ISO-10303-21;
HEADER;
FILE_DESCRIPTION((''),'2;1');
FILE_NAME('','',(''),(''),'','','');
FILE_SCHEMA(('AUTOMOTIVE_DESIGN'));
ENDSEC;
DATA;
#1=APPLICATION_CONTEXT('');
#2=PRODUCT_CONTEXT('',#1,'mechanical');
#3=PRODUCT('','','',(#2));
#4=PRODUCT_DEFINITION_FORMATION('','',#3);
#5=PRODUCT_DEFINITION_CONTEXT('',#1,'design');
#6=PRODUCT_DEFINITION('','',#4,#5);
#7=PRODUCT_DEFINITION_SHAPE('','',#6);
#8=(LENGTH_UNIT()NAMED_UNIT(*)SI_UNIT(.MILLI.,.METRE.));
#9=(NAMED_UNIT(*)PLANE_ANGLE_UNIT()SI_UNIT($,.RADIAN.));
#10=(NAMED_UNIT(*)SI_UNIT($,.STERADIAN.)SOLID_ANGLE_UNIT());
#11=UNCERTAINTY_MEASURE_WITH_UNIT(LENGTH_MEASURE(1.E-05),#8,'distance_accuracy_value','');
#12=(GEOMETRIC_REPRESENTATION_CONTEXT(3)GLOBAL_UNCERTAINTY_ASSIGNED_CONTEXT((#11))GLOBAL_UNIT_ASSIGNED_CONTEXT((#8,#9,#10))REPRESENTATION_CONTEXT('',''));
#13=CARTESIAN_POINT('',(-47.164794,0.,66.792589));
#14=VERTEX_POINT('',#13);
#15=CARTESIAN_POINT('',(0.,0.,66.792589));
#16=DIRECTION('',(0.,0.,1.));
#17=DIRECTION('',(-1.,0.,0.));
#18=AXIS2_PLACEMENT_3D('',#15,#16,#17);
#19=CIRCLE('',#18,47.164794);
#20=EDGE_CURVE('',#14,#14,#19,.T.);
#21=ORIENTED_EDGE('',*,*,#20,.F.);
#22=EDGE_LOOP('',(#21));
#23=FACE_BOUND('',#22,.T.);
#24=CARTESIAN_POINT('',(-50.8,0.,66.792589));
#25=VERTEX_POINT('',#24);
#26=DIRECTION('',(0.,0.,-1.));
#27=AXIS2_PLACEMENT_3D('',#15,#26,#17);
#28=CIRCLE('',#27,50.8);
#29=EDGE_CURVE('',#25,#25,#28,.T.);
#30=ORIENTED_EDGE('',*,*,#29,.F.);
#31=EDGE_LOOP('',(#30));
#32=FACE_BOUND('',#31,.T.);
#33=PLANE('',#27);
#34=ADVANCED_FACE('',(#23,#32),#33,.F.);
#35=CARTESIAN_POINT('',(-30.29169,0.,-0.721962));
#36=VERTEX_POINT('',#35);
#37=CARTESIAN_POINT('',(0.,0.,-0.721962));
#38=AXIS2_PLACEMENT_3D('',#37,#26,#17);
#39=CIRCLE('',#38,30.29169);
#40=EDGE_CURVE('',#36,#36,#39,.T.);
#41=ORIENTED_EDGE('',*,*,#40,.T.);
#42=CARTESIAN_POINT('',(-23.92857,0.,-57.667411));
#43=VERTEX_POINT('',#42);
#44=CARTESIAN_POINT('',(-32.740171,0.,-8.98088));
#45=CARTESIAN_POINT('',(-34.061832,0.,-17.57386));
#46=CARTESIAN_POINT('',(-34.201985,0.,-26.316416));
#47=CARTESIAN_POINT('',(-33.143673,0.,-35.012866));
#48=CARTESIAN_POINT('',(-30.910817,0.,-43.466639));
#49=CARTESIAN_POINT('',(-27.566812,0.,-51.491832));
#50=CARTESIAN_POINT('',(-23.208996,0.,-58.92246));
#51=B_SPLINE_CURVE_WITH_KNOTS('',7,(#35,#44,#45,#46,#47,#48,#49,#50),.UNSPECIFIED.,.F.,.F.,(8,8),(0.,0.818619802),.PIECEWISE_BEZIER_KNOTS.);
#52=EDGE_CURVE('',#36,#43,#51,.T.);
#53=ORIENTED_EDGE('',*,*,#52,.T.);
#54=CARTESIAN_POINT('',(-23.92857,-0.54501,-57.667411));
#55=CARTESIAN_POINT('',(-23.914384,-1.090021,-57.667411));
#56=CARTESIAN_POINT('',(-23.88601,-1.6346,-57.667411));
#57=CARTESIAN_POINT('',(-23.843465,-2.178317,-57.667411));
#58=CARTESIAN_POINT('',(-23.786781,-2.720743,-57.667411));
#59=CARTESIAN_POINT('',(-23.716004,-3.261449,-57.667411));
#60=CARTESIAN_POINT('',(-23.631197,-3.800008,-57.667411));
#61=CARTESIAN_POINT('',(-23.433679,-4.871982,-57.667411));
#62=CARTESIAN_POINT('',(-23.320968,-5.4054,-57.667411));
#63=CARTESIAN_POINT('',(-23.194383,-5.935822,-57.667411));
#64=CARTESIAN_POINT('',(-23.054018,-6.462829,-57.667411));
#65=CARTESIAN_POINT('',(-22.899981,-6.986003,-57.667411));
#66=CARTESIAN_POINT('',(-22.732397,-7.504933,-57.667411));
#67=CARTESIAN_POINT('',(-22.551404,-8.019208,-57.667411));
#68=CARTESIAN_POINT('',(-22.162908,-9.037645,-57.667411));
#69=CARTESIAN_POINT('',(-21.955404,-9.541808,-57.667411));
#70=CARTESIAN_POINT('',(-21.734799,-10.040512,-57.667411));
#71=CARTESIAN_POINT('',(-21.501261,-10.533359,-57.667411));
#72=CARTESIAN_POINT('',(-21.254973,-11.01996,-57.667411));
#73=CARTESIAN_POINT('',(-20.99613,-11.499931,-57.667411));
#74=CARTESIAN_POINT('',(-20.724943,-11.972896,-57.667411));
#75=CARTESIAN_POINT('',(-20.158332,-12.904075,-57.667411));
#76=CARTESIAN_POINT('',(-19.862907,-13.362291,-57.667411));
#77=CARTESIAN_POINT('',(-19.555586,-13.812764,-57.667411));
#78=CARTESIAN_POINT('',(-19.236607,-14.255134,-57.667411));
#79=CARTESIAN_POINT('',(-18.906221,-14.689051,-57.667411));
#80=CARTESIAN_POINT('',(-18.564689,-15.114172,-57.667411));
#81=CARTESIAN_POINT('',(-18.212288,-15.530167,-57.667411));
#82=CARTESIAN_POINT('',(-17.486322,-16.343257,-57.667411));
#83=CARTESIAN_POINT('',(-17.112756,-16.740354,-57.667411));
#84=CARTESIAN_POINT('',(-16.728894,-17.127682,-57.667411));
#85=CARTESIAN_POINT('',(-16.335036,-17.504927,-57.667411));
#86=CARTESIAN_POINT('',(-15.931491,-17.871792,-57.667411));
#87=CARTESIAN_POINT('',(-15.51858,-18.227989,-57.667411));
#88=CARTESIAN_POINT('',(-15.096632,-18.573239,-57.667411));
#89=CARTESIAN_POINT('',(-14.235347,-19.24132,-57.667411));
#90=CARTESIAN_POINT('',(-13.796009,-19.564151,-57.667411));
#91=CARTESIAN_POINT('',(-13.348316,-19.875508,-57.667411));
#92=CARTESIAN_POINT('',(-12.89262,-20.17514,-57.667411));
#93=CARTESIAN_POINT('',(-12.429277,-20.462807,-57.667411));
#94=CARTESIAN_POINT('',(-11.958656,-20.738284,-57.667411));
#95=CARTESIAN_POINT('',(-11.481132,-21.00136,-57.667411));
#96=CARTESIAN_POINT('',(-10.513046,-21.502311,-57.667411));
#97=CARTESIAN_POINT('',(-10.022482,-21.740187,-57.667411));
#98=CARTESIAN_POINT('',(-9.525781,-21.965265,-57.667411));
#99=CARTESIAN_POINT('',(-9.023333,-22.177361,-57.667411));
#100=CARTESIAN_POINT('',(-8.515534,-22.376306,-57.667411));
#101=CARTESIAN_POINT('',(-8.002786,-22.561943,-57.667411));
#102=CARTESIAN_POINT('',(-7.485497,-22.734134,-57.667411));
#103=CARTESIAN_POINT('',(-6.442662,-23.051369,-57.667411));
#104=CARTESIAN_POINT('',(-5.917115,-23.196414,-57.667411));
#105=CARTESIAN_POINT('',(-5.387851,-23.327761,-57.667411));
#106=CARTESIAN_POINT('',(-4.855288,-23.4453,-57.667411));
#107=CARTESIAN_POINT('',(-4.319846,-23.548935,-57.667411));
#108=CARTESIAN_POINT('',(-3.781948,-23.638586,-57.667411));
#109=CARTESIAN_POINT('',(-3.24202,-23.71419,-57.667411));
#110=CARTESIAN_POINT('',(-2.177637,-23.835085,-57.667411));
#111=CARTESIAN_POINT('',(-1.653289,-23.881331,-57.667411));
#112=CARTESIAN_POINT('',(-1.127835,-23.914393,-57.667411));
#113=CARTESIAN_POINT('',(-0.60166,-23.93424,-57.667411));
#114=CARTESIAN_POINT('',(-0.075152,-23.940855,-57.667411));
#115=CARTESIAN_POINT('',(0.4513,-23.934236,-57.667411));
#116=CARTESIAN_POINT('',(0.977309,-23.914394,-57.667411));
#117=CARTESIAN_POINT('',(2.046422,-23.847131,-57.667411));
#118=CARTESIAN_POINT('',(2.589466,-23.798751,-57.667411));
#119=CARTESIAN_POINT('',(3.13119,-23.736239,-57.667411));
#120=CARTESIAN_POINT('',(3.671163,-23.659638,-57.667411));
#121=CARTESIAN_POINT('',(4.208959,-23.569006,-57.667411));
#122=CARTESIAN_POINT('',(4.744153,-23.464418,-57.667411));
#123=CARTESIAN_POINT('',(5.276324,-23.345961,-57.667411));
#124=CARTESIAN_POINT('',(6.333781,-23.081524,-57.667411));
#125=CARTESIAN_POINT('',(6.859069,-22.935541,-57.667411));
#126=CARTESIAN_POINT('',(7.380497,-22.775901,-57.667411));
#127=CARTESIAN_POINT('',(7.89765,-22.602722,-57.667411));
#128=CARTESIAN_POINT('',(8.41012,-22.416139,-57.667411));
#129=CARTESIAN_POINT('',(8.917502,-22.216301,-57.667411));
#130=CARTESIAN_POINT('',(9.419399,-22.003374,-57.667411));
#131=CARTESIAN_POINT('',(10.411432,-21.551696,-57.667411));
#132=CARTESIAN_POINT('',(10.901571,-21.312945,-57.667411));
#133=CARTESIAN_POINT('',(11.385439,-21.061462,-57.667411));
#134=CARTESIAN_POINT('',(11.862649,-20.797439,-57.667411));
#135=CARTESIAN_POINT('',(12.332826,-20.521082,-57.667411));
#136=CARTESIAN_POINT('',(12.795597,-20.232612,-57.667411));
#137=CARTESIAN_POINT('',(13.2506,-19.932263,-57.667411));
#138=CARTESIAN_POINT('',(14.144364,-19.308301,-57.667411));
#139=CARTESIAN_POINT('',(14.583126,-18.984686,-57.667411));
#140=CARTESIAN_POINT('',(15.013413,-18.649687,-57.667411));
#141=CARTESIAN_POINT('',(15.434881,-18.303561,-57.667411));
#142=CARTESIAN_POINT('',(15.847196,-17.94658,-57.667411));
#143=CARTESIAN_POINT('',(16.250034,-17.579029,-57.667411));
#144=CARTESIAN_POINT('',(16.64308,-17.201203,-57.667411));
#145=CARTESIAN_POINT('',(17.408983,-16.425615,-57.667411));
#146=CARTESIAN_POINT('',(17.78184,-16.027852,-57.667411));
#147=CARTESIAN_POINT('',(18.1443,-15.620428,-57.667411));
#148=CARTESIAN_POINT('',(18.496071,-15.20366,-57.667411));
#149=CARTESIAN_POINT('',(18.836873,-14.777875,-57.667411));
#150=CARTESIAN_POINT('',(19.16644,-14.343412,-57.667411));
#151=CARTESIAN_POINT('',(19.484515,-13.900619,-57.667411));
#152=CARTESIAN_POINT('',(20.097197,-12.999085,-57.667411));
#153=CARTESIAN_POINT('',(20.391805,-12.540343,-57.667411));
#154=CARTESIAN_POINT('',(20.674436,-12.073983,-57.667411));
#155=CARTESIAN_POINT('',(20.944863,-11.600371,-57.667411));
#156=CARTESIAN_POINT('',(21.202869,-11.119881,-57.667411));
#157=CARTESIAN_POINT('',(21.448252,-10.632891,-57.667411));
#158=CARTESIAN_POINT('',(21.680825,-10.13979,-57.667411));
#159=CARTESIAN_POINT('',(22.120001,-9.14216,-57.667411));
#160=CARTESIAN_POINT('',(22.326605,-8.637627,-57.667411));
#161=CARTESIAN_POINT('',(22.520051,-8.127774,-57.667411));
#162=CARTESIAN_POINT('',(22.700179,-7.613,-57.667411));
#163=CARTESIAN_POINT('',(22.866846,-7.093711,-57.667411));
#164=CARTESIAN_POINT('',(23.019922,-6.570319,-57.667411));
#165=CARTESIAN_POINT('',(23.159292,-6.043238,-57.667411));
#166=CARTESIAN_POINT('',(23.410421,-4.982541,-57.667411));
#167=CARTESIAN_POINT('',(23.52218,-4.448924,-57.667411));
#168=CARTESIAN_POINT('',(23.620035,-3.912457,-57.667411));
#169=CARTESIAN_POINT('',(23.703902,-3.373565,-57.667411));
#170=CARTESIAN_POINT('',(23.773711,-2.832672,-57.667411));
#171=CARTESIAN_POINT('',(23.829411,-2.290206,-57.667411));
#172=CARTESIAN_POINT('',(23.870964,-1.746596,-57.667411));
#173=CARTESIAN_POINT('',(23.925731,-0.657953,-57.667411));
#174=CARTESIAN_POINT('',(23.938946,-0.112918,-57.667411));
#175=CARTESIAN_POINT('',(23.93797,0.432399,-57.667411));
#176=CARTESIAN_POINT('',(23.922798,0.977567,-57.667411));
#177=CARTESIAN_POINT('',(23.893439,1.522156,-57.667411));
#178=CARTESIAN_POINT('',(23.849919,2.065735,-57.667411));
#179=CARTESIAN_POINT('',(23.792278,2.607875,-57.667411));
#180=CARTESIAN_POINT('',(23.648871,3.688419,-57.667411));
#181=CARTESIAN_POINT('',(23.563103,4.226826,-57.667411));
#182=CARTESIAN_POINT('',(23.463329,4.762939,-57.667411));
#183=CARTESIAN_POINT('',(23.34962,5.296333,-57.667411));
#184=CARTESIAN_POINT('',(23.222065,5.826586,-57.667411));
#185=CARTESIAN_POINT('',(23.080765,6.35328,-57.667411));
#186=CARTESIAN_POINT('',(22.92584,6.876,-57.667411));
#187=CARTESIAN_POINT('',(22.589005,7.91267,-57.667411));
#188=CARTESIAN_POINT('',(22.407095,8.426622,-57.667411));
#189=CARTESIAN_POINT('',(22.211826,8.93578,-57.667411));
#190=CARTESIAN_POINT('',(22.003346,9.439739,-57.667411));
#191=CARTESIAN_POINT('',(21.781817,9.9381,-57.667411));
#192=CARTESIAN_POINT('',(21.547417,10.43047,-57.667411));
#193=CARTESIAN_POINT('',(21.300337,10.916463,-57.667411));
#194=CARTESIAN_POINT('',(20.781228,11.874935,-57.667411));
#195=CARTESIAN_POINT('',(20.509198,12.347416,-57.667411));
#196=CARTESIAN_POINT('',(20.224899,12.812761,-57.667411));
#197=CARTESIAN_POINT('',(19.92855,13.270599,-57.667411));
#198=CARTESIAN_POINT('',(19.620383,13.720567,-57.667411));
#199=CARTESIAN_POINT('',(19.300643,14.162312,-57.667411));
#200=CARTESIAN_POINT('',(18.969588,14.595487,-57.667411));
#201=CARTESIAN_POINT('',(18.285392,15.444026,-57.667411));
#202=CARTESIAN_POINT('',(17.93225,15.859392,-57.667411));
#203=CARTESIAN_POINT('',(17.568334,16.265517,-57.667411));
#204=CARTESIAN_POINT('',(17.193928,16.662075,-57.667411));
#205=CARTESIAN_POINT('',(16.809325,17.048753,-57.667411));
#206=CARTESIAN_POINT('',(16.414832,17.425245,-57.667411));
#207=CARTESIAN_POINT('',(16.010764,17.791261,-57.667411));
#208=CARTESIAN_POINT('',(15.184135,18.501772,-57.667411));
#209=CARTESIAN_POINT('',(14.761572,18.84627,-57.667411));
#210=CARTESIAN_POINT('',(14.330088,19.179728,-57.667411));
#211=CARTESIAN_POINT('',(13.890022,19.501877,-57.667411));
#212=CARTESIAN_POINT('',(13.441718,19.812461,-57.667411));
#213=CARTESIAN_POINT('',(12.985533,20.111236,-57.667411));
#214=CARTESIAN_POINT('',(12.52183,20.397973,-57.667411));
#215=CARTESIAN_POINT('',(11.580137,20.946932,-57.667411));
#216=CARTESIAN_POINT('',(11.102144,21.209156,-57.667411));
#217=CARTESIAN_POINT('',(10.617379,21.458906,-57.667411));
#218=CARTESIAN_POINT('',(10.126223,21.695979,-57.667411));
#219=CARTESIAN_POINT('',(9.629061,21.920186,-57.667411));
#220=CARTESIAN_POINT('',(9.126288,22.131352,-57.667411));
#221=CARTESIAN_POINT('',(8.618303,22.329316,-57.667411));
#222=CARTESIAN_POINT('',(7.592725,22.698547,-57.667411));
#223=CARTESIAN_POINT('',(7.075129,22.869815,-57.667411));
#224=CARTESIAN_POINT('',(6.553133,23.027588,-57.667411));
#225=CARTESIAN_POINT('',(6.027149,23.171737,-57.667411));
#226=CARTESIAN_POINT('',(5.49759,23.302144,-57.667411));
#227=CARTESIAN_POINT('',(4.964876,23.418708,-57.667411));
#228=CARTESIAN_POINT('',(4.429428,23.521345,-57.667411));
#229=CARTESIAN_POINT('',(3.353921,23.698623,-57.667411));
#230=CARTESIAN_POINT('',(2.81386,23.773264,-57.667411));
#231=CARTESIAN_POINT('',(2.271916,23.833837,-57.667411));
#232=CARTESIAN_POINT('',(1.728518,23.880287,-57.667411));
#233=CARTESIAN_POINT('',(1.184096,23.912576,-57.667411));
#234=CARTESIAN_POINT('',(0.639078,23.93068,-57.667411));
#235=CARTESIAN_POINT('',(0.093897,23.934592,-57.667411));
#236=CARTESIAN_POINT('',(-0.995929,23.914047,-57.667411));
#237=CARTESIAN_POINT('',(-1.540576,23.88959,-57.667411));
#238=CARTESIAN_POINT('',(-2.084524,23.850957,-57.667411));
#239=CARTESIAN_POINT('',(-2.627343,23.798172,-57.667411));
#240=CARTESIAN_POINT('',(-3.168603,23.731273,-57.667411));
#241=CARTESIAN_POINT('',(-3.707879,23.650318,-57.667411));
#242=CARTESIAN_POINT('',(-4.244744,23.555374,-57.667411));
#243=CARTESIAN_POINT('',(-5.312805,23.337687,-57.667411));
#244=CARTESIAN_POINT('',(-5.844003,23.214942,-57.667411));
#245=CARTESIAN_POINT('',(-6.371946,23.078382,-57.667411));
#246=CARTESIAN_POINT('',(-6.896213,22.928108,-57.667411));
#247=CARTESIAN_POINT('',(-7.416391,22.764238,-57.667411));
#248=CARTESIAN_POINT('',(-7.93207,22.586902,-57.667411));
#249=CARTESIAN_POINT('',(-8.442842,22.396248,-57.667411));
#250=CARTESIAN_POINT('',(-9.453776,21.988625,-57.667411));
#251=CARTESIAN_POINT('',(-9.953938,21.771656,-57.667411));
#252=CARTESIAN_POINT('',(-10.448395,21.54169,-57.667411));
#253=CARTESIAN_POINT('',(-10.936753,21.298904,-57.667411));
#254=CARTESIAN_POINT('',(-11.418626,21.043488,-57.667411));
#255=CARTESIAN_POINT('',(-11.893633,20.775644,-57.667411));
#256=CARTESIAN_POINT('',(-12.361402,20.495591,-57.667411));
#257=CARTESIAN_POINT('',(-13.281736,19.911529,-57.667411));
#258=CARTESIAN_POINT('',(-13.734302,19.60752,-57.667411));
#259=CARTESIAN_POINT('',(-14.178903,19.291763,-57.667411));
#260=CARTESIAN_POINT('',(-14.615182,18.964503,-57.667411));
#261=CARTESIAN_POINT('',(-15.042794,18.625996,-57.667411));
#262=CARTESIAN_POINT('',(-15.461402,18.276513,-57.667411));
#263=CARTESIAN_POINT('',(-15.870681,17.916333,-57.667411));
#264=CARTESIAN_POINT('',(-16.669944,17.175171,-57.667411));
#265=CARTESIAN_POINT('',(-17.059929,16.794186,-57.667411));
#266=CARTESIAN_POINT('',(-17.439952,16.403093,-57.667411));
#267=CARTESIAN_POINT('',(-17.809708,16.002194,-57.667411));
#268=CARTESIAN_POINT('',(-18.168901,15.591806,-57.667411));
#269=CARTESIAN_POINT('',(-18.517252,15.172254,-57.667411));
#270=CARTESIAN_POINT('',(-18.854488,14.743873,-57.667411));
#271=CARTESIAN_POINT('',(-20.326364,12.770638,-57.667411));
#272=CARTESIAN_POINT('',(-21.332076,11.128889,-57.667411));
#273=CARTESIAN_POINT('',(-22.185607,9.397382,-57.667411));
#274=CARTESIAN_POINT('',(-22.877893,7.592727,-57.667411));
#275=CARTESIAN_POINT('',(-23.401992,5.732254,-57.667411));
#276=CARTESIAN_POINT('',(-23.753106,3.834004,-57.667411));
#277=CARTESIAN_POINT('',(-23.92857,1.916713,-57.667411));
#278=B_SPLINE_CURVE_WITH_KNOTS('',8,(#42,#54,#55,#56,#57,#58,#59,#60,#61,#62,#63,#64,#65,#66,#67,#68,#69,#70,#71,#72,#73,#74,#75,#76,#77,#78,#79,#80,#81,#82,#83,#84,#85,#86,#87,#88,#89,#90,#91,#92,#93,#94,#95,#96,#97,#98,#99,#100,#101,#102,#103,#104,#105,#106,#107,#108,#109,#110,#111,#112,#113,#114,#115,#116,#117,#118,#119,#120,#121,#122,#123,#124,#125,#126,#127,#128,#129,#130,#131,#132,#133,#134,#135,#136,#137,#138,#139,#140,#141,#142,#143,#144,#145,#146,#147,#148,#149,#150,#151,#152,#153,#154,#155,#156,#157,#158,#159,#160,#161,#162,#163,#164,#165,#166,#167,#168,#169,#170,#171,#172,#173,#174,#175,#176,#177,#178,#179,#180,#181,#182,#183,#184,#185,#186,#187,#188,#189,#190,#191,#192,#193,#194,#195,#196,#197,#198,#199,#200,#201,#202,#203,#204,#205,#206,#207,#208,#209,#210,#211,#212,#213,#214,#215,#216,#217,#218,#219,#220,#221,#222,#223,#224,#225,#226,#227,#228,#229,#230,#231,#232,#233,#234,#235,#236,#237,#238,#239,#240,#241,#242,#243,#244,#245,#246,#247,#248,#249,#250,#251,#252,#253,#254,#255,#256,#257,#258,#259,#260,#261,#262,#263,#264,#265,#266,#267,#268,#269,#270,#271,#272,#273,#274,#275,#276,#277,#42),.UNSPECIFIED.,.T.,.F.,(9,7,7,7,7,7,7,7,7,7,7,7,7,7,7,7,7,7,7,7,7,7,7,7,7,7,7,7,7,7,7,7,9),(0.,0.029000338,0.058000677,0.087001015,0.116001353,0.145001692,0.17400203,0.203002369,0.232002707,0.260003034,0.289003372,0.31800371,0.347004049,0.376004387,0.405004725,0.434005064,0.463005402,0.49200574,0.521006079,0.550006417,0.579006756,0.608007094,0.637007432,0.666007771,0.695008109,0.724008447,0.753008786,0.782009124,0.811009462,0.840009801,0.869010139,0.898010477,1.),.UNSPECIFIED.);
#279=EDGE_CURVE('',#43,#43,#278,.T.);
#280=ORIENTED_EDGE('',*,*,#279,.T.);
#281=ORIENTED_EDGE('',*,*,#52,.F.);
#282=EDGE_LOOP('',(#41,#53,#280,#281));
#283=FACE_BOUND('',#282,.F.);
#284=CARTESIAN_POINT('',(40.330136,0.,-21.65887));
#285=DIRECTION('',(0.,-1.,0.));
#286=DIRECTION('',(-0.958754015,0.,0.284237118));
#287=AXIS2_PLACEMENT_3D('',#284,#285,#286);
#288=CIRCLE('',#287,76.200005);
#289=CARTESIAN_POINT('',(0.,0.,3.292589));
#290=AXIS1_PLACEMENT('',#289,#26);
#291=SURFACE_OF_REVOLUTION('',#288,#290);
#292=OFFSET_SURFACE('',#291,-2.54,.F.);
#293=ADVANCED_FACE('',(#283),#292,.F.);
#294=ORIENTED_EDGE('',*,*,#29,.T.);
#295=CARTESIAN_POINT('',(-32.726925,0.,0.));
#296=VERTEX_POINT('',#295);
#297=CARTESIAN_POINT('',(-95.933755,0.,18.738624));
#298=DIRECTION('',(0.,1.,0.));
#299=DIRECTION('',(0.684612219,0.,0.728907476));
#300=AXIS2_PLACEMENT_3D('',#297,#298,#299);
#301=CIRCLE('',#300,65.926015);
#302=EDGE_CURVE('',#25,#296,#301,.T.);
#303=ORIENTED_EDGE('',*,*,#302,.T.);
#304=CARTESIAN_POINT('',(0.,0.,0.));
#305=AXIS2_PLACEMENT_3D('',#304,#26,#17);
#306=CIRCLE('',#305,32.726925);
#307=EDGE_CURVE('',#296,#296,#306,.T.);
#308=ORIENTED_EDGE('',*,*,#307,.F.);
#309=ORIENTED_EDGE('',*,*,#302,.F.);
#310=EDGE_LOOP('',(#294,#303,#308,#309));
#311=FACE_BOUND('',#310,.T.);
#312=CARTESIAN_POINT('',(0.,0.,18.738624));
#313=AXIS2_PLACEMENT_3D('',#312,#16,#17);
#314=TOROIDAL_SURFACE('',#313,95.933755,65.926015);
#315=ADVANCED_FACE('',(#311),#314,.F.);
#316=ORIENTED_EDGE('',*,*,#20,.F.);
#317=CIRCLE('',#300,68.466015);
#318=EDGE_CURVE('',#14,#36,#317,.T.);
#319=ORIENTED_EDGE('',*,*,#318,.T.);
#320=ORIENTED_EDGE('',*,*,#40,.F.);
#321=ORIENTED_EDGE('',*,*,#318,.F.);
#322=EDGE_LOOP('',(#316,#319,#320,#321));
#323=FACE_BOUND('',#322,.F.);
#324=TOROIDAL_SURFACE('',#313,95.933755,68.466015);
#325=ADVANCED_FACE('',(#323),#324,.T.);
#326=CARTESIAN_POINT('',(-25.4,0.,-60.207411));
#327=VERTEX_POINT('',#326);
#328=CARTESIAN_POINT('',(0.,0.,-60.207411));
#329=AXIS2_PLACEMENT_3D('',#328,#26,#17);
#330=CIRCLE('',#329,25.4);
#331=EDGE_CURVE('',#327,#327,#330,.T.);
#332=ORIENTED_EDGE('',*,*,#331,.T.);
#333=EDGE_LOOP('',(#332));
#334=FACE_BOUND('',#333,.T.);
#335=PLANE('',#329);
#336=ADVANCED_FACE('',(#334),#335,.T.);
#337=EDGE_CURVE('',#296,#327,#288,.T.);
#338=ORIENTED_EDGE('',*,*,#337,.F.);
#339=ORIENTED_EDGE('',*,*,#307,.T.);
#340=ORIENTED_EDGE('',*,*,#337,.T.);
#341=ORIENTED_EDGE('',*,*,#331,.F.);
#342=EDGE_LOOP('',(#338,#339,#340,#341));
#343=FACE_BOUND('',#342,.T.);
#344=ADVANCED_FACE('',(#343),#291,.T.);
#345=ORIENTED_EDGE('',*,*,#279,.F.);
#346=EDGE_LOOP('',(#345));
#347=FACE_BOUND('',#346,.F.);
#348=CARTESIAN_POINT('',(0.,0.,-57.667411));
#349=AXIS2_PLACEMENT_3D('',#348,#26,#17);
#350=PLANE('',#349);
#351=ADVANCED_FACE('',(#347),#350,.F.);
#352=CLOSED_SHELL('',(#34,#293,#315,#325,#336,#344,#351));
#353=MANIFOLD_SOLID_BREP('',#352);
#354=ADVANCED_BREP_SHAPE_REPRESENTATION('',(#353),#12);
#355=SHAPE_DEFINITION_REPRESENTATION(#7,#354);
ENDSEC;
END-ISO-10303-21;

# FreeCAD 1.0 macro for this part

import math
import FreeCAD as App
import Part
import Sketcher
from FreeCAD import Vector
Q = App.Units.Quantity


def faces_at(feature, points):
    """Names of the faces that lie closest to the given points."""
    faces = feature.Shape.Faces
    near = lambda p: min(range(len(faces)), key=lambda i: faces[i].distToShape(Part.Vertex(*p))[0])
    return sorted({f"Face{near(p) + 1}" for p in points})

doc = App.newDocument("Part")
body = doc.addObject("PartDesign::Body", "Body")

# Sketch on XZ plane
sketch1 = body.newObject("Sketcher::SketchObject", "Sketch")
sketch1.AttachmentSupport = (doc.getObject("XZ_Plane"), [""])
sketch1.MapMode = "FlatFace"
sketch1.addGeometry([
    Part.LineSegment(Vector(-25.4, -60.207411, 0), Vector(0, -60.207411, 0)),  # 0
    Part.LineSegment(Vector(0, -60.207411, 0), Vector(0, 66.792589, 0)),  # 1
    Part.LineSegment(Vector(0, 66.792589, 0), Vector(-50.8, 66.792589, 0)),  # 2
    Part.ArcOfCircle(Part.Circle(Vector(-95.933755, 18.738624, 0), Vector(0, 0, 1), 65.926015), math.radians(-16.513256), math.radians(46.794882)),  # 3
    Part.ArcOfCircle(Part.Circle(Vector(40.330136, -21.65887, 0), Vector(0, 0, 1), 76.200005), math.radians(163.486747), math.radians(210.390207)),  # 4
], False)
sketch1.addConstraint([
    Sketcher.Constraint("Coincident", 0, 2, 1, 1),
    Sketcher.Constraint("Coincident", 1, 2, 2, 1),
    Sketcher.Constraint("Coincident", 2, 2, 3, 2),
    Sketcher.Constraint("Tangent", 3, 1, 4, 1),
    Sketcher.Constraint("Coincident", 4, 2, 0, 1),
    Sketcher.Constraint("Horizontal", 0),
    Sketcher.Constraint("Vertical", 1),
    Sketcher.Constraint("Horizontal", 2),
    Sketcher.Constraint("PointOnObject", 0, 2, -2),
    Sketcher.Constraint("PointOnObject", 3, 1, -1),
    Sketcher.Constraint("DistanceX", 0, 1, 0, 2, Q("1 in")),
    Sketcher.Constraint("DistanceX", 2, 2, 2, 1, Q("2 in")),
    Sketcher.Constraint("DistanceY", 1, 1, 1, 2, Q("5 in")),
    Sketcher.Constraint("Radius", 3, Q("65.926015 mm")),
    Sketcher.Constraint("Radius", 4, Q("76.200005 mm")),
    Sketcher.Constraint("DistanceY", 4, 3, -1, 1, Q("21.65887 mm")),
])
revolution = body.newObject("PartDesign::Revolution", "Revolution")
revolution.Profile = sketch1
revolution.ReferenceAxis = (sketch1, ["V_Axis"])
revolution.Angle = 360
doc.recompute()

thickness = body.newObject("PartDesign::Thickness", "Thickness")
thickness.Base = (revolution, faces_at(revolution, [(0, 0, 66.793)]))
thickness.Value = Q("0.1 in")
thickness.Reversed = True
thickness.Join = "Arc"

doc.recompute()
